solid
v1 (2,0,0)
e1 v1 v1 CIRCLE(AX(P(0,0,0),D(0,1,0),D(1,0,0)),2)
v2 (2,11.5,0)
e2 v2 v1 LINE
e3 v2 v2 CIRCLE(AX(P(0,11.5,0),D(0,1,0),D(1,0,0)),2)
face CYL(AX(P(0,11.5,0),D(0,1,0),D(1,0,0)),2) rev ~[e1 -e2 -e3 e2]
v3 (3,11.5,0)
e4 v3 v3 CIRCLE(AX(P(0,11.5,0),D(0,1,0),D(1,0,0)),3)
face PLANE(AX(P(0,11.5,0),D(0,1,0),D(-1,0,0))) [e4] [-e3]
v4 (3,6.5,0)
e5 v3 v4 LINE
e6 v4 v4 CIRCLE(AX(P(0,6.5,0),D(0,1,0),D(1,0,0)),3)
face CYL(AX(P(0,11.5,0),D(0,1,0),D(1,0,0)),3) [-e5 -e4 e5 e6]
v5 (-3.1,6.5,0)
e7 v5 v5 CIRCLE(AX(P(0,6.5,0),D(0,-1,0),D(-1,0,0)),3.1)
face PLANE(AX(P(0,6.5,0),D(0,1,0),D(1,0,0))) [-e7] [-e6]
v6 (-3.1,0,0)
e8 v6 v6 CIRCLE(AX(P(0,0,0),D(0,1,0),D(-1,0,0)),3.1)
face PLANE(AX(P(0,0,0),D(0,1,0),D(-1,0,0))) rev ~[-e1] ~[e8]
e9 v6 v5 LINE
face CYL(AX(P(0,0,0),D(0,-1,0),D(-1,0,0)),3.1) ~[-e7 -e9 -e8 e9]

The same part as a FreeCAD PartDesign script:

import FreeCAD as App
import Part
import Sketcher

doc = App.newDocument("Part")
body = doc.addObject("PartDesign::Body", "Body")

# Sketch on XZ plane
sketch1 = body.newObject("Sketcher::SketchObject", "Sketch")
sketch1.AttachmentSupport = (doc.getObject("XZ_Plane"), [""])
sketch1.MapMode = "FlatFace"
sketch1.addGeometry(Part.Circle(App.Vector(0, 0, 0), App.Vector(0, 0, 1), 3.1), False)
sketch1.addConstraint(Sketcher.Constraint("Coincident", 0, 3, -1, 1))
sketch1.addConstraint(Sketcher.Constraint("Diameter", 0, 6.2))
pad1 = body.newObject("PartDesign::Pad", "Pad")
pad1.Profile = sketch1
pad1.Length = 11.5
pad1.Reversed = True

# Sketch on XZ plane
sketch2 = body.newObject("Sketcher::SketchObject", "Sketch001")
sketch2.AttachmentSupport = (doc.getObject("XZ_Plane"), [""])
sketch2.MapMode = "FlatFace"
sketch2.AttachmentOffset = App.Placement(App.Vector(0, 0, -11.5), App.Rotation())
sketch2.addGeometry(Part.Circle(App.Vector(0, 0, 0), App.Vector(0, 0, 1), 2), False)
sketch2.addConstraint(Sketcher.Constraint("Coincident", 0, 3, -1, 1))
sketch2.addConstraint(Sketcher.Constraint("Diameter", 0, 4.0))
pocket1 = body.newObject("PartDesign::Pocket", "Pocket")
pocket1.Profile = sketch2
pocket1.Length = 15.75
pocket1.Reversed = True

# Sketch on XZ plane
sketch3 = body.newObject("Sketcher::SketchObject", "Sketch002")
sketch3.AttachmentSupport = (doc.getObject("XZ_Plane"), [""])
sketch3.MapMode = "FlatFace"
sketch3.AttachmentOffset = App.Placement(App.Vector(0, 0, -11.5), App.Rotation())
sketch3.addGeometry(Part.Circle(App.Vector(0, 0, 0), App.Vector(0, 0, 1), 5), False)
sketch3.addGeometry(Part.Circle(App.Vector(0, 0, 0), App.Vector(0, 0, 1), 3), False)
sketch3.addConstraint(Sketcher.Constraint("Coincident", 0, 3, -1, 1))
sketch3.addConstraint(Sketcher.Constraint("Coincident", 1, 3, -1, 1))
sketch3.addConstraint(Sketcher.Constraint("Diameter", 1, 6.0))
sketch3.addConstraint(Sketcher.Constraint("Diameter", 0, 9.9036))
pocket2 = body.newObject("PartDesign::Pocket", "Pocket001")
pocket2.Profile = sketch3
pocket2.Length = 5
pocket2.Reversed = True

doc.recompute()
